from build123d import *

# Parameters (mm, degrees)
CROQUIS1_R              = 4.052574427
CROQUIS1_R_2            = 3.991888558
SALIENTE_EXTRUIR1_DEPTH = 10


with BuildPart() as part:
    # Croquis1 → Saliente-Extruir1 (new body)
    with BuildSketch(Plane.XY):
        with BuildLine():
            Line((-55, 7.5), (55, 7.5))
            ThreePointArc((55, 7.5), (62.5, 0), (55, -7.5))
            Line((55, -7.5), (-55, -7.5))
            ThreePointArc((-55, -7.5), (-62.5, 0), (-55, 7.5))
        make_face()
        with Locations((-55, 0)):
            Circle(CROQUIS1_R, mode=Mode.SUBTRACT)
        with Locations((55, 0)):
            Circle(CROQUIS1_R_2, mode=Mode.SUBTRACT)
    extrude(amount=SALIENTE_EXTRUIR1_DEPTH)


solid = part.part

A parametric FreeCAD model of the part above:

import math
import FreeCAD as App
import Part
import Sketcher
from FreeCAD import Vector

doc = App.newDocument("Part")
body = doc.addObject("PartDesign::Body", "Body")

# Sketch on XY plane
sketch1 = body.newObject("Sketcher::SketchObject", "Sketch")
sketch1.AttachmentSupport = (doc.getObject("XY_Plane"), [""])
sketch1.MapMode = "FlatFace"
sketch1.addGeometry([
    Part.LineSegment(Vector(55, 7.5, 0), Vector(-55, 7.5, 0)),  # 0
    Part.ArcOfCircle(Part.Circle(Vector(-55, 0, 0), Vector(0, 0, 1), 7.5), math.radians(90), math.radians(270)),  # 1
    Part.LineSegment(Vector(-55, -7.5, 0), Vector(55, -7.5, 0)),  # 2
    Part.ArcOfCircle(Part.Circle(Vector(55, 0, 0), Vector(0, 0, 1), 7.5), math.radians(-90), math.radians(90)),  # 3
    Part.Circle(Vector(55, 0, 0), Vector(0, 0, 1), 3.991889),  # 4
    Part.Circle(Vector(-55, 0, 0), Vector(0, 0, 1), 4.052574),  # 5
], False)
sketch1.addConstraint([
    Sketcher.Constraint("Tangent", 0, 2, 1, 1),
    Sketcher.Constraint("Tangent", 1, 2, 2, 1),
    Sketcher.Constraint("Tangent", 2, 2, 3, 1),
    Sketcher.Constraint("Tangent", 3, 2, 0, 1),
    Sketcher.Constraint("Horizontal", 0),
    Sketcher.Constraint("Horizontal", 2),
    Sketcher.Constraint("Coincident", 4, 3, 3, 3),
    Sketcher.Constraint("Coincident", 5, 3, 1, 3),
    Sketcher.Constraint("Symmetric", 1, 3, 3, 3, -1, 1),
    Sketcher.Constraint("Radius", 1, 7.5),
    Sketcher.Constraint("DistanceX", 0, 2, 0, 1, 110.0),
    Sketcher.Constraint("Diameter", 5, 8.105149),
    Sketcher.Constraint("Diameter", 4, 7.983777),
])
pad1 = body.newObject("PartDesign::Pad", "Pad")
pad1.Profile = sketch1
pad1.Length = 10

doc.recompute()
